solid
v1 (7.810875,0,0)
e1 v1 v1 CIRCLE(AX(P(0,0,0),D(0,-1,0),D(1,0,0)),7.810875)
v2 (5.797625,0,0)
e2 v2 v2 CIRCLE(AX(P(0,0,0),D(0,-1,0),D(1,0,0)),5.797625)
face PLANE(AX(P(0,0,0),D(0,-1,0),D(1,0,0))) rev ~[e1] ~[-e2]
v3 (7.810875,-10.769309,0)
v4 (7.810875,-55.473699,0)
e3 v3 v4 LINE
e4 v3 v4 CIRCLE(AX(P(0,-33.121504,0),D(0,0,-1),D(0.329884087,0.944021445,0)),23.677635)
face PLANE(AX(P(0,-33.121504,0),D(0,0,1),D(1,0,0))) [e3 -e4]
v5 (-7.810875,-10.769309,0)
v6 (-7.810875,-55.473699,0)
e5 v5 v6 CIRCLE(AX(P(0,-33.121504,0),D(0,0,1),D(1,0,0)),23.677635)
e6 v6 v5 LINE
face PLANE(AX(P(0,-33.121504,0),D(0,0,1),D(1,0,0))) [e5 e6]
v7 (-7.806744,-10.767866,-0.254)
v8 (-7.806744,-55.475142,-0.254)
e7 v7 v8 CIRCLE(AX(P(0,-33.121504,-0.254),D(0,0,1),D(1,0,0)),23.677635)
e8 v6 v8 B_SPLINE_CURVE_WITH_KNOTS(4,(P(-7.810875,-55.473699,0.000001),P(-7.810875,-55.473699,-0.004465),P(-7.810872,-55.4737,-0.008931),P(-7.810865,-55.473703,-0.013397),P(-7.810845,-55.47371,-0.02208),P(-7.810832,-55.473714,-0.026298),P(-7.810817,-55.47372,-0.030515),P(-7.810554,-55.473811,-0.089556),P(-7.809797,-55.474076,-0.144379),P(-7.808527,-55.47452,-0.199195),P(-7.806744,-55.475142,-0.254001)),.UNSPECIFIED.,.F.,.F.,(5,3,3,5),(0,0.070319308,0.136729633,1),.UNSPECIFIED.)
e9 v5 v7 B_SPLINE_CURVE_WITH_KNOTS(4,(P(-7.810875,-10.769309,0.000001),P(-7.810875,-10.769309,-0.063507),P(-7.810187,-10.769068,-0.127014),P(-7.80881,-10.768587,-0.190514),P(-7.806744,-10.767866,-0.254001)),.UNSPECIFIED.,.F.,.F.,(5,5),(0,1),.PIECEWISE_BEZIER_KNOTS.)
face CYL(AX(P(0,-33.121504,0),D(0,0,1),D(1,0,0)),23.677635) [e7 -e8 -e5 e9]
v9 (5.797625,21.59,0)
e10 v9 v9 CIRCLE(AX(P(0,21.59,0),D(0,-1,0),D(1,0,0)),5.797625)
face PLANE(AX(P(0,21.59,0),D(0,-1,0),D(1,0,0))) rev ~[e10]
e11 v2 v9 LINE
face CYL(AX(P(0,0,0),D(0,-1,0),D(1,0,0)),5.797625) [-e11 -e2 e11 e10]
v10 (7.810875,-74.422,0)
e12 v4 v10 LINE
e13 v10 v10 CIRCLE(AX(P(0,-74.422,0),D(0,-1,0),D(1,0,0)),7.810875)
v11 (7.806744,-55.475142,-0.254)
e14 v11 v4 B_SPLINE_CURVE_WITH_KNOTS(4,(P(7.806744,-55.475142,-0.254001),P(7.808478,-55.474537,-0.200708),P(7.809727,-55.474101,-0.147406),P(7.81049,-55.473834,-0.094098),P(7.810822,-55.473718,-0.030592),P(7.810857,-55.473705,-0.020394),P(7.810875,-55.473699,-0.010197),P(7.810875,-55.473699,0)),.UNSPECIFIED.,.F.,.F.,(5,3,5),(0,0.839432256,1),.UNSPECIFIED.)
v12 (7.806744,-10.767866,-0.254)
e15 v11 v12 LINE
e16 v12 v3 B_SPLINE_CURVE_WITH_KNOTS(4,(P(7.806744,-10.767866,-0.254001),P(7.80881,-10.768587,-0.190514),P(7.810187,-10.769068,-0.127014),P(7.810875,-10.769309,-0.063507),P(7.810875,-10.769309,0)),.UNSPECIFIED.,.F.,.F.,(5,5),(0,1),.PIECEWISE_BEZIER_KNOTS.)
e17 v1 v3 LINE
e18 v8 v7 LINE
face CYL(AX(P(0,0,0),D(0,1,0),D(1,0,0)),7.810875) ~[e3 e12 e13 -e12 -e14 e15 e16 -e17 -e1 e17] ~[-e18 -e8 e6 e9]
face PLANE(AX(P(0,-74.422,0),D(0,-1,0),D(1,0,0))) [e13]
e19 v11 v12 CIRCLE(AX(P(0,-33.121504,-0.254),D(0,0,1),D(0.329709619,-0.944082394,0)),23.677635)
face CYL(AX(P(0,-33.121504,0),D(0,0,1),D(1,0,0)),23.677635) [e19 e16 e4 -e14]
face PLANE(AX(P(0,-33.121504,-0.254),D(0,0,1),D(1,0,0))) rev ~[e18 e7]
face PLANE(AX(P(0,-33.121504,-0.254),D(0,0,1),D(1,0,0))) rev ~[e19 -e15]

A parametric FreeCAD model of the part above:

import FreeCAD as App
import Part
import Sketcher

V = App.Vector
Q = App.Units.Quantity

doc = App.newDocument("Part")
body = doc.addObject("PartDesign::Body", "Body")

sketch1 = body.newObject("Sketcher::SketchObject", "Sketch")
sketch1.AttachmentSupport = (doc.getObject("XZ_Plane"), [""])
sketch1.MapMode = "FlatFace"
sketch1.addGeometry(Part.Circle(V(0, 0, 0), V(0, 0, 1), 8), False)
sketch1.addConstraint([
    Sketcher.Constraint("Coincident", 0, 3, -1, 1),
    Sketcher.Constraint("Diameter", 0, 15.62175),
])
pad1 = body.newObject("PartDesign::Pad", "Pad")
pad1.Profile = sketch1
pad1.Length = Q("2.93 in")

sketch2 = body.newObject("Sketcher::SketchObject", "Sketch001")
sketch2.AttachmentSupport = (doc.getObject("XZ_Plane"), [""])
sketch2.MapMode = "FlatFace"
sketch2.addGeometry(Part.Circle(V(0, 0, 0), V(0, 0, 1), 6), False)
sketch2.addConstraint([
    Sketcher.Constraint("Coincident", 0, 3, -1, 1),
    Sketcher.Constraint("Diameter", 0, 11.59525),
])
pad2 = body.newObject("PartDesign::Pad", "Pad001")
pad2.Profile = sketch2
pad2.Length = Q("0.85 in")
pad2.Reversed = True

sketch3 = body.newObject("Sketcher::SketchObject", "Sketch002")
sketch3.AttachmentSupport = (doc.getObject("XY_Plane"), [""])
sketch3.MapMode = "FlatFace"
sketch3.addGeometry(Part.Circle(V(0, -33, 0), V(0, 0, 1), 24), False)
sketch3.addConstraint([
    Sketcher.Constraint("PointOnObject", 0, 3, -2),
    Sketcher.Constraint("Diameter", 0, 47.35527),
    Sketcher.Constraint("DistanceY", 0, 3, -1, 1, 33.121504),
])
pad3 = body.newObject("PartDesign::Pad", "Pad002")
pad3.Profile = sketch3
pad3.Length = Q("0.01 in")
pad3.Reversed = True

doc.recompute()
